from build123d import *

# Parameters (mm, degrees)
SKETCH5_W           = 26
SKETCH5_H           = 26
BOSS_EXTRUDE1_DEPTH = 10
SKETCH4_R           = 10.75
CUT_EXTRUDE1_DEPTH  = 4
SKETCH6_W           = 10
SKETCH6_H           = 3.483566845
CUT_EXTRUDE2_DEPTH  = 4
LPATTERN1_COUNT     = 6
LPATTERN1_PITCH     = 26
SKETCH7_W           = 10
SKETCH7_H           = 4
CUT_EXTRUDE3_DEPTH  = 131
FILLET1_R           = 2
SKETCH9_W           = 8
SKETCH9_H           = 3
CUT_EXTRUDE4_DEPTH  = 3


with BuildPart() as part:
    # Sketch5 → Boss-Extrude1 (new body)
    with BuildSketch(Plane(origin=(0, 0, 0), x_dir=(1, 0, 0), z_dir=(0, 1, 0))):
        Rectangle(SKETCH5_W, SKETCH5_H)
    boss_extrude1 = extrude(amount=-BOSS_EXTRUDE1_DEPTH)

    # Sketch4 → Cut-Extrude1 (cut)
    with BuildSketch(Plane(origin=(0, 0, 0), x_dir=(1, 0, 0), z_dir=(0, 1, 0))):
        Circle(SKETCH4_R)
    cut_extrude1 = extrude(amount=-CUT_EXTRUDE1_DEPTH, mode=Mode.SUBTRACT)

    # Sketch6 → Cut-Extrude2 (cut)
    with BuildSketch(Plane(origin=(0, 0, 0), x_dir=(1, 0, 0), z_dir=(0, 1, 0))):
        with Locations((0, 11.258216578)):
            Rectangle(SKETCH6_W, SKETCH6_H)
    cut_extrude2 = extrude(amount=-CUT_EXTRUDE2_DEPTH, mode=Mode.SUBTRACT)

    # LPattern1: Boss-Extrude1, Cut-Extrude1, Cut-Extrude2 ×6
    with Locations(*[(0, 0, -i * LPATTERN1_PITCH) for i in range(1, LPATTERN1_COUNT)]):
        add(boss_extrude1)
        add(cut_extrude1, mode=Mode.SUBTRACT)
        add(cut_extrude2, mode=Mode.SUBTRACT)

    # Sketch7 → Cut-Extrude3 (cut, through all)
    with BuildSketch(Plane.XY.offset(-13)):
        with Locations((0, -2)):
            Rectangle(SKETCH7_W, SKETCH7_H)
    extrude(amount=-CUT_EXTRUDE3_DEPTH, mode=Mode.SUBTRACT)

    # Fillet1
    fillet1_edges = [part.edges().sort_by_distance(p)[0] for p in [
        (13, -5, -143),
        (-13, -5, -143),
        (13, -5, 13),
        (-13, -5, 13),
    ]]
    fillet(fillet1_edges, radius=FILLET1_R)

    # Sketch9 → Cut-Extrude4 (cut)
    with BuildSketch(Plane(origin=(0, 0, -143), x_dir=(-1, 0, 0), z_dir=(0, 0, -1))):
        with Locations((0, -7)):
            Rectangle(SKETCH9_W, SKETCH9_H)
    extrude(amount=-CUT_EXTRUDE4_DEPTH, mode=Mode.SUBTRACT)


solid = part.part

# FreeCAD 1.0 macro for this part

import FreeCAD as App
import Part
import Sketcher

V = App.Vector
Q = App.Units.Quantity


def edges_at(feature, points):
    """Names of the edges that pass closest to the given points."""
    edges = feature.Shape.Edges
    near = lambda p: min(range(len(edges)), key=lambda i: edges[i].distToShape(Part.Vertex(*p))[0])
    return sorted({f"Edge{near(p) + 1}" for p in points})


def add_polygon(sketch, points):
    """Adds a closed chain of lines whose ends are joined by coincident constraints."""
    first, n = sketch.GeometryCount, len(points)
    for a, b in zip(points, points[1:] + points[:1]):
        sketch.addGeometry(Part.LineSegment(App.Vector(*a, 0), App.Vector(*b, 0)), False)
    for i in range(n):
        sketch.addConstraint(Sketcher.Constraint("Coincident", first + i, 2, first + (i + 1) % n, 1))

doc = App.newDocument("Part")
body = doc.addObject("PartDesign::Body", "Body")

# Sketch on XZ plane
sketch1 = body.newObject("Sketcher::SketchObject", "Sketch")
sketch1.AttachmentSupport = (doc.getObject("XZ_Plane"), [""])
sketch1.MapMode = "FlatFace"
add_polygon(sketch1, [(-13, -13), (-13, 13), (13, 13), (13, -13)])  # lines 0-3
sketch1.addConstraint(Sketcher.Constraint("Vertical", 0))
sketch1.addConstraint(Sketcher.Constraint("Horizontal", 1))
sketch1.addConstraint(Sketcher.Constraint("Vertical", 2))
sketch1.addConstraint(Sketcher.Constraint("Horizontal", 3))
sketch1.addConstraint(Sketcher.Constraint("Symmetric", 0, 2, 2, 2, -1, 1))
sketch1.addConstraint(Sketcher.Constraint("Equal", 3, 0))
sketch1.addConstraint(Sketcher.Constraint("DistanceX", 1, 1, 1, 2, Q("26 mm")))
pad1 = body.newObject("PartDesign::Pad", "Pad")
pad1.Profile = sketch1
pad1.Length = 10

# Sketch on XZ plane
sketch2 = body.newObject("Sketcher::SketchObject", "Sketch001")
sketch2.AttachmentSupport = (doc.getObject("XZ_Plane"), [""])
sketch2.MapMode = "FlatFace"
sketch2.addGeometry(Part.Circle(V(0, 0, 0), V(0, 0, 1), 11), False)
sketch2.addConstraint(Sketcher.Constraint("Coincident", 0, 3, -1, 1))
sketch2.addConstraint(Sketcher.Constraint("Diameter", 0, Q("21.5 mm")))
pocket1 = body.newObject("PartDesign::Pocket", "Pocket")
pocket1.Profile = sketch2
pocket1.Length = 4
pocket1.Reversed = True

# Sketch on XZ plane
sketch3 = body.newObject("Sketcher::SketchObject", "Sketch002")
sketch3.AttachmentSupport = (doc.getObject("XZ_Plane"), [""])
sketch3.MapMode = "FlatFace"
add_polygon(sketch3, [(-5, -13), (-5, -9.5), (5, -9.5), (5, -13)])  # lines 0-3
sketch3.addConstraint(Sketcher.Constraint("Vertical", 0))
sketch3.addConstraint(Sketcher.Constraint("Horizontal", 1))
sketch3.addConstraint(Sketcher.Constraint("Vertical", 2))
sketch3.addConstraint(Sketcher.Constraint("Horizontal", 3))
sketch3.addConstraint(Sketcher.Constraint("DistanceX", 1, 1, 1, 2, Q("10 mm")))
sketch3.addConstraint(Sketcher.Constraint("DistanceX", 0, 2, -1, 1, Q("5 mm")))
sketch3.addConstraint(Sketcher.Constraint("DistanceY", 2, 2, -1, 1, Q("13 mm")))
sketch3.addConstraint(Sketcher.Constraint("DistanceY", 0, 1, 0, 2, Q("3.483567 mm")))
pocket2 = body.newObject("PartDesign::Pocket", "Pocket001")
pocket2.Profile = sketch3
pocket2.Length = 4
pocket2.Reversed = True
doc.recompute()

linearpattern = body.newObject("PartDesign::LinearPattern", "LinearPattern")
linearpattern.Originals = [pad1, pocket1, pocket2]
linearpattern.Direction = (doc.getObject("Z_Axis"), [""])
linearpattern.Mode = "offset"
linearpattern.Offset = 26
linearpattern.Occurrences = 6
linearpattern.Reversed = True
body.Tip = linearpattern

# Sketch on XY plane
sketch4 = body.newObject("Sketcher::SketchObject", "Sketch003")
sketch4.AttachmentSupport = (doc.getObject("XY_Plane"), [""])
sketch4.MapMode = "FlatFace"
sketch4.AttachmentOffset = App.Placement(V(0, 0, -13), App.Rotation())
add_polygon(sketch4, [(-5, 0), (-5, -4), (5, -4), (5, 0)])  # lines 0-3
sketch4.addConstraint(Sketcher.Constraint("Vertical", 0))
sketch4.addConstraint(Sketcher.Constraint("Horizontal", 1))
sketch4.addConstraint(Sketcher.Constraint("Vertical", 2))
sketch4.addConstraint(Sketcher.Constraint("Horizontal", 3))
sketch4.addConstraint(Sketcher.Constraint("Symmetric", 2, 2, 3, 2, -1, 1))
sketch4.addConstraint(Sketcher.Constraint("DistanceX", 1, 1, 1, 2, Q("10 mm")))
sketch4.addConstraint(Sketcher.Constraint("DistanceY", 0, 2, 0, 1, Q("4 mm")))
pocket3 = body.newObject("PartDesign::Pocket", "Pocket002")
pocket3.Profile = sketch4
pocket3.Type = "ThroughAll"
doc.recompute()

fillet = body.newObject("PartDesign::Fillet", "Fillet")
fillet.Base = (pocket3, edges_at(pocket3, [
    (13, -5, -143),
    (-13, -5, -143),
    (13, -5, 13),
    (-13, -5, 13),
]))
fillet.Radius = 2

# Sketch on XY plane
sketch5 = body.newObject("Sketcher::SketchObject", "Sketch004")
sketch5.AttachmentSupport = (doc.getObject("XY_Plane"), [""])
sketch5.MapMode = "FlatFace"
sketch5.AttachmentOffset = App.Placement(V(0, 0, -143), App.Rotation())
add_polygon(sketch5, [(4, -5.5), (4, -8.5), (-4, -8.5), (-4, -5.5)])  # lines 0-3
sketch5.addConstraint(Sketcher.Constraint("Vertical", 0))
sketch5.addConstraint(Sketcher.Constraint("Horizontal", 1))
sketch5.addConstraint(Sketcher.Constraint("Vertical", 2))
sketch5.addConstraint(Sketcher.Constraint("Horizontal", 3))
sketch5.addConstraint(Sketcher.Constraint("DistanceX", 1, 2, 1, 1, Q("8 mm")))
sketch5.addConstraint(Sketcher.Constraint("DistanceY", 0, 2, 0, 1, Q("3 mm")))
sketch5.addConstraint(Sketcher.Constraint("DistanceX", -1, 1, 0, 2, Q("4 mm")))
sketch5.addConstraint(Sketcher.Constraint("DistanceY", 0, 2, -1, 1, Q("8.5 mm")))
pocket4 = body.newObject("PartDesign::Pocket", "Pocket003")
pocket4.Profile = sketch5
pocket4.Length = 3
pocket4.Reversed = True

doc.recompute()
